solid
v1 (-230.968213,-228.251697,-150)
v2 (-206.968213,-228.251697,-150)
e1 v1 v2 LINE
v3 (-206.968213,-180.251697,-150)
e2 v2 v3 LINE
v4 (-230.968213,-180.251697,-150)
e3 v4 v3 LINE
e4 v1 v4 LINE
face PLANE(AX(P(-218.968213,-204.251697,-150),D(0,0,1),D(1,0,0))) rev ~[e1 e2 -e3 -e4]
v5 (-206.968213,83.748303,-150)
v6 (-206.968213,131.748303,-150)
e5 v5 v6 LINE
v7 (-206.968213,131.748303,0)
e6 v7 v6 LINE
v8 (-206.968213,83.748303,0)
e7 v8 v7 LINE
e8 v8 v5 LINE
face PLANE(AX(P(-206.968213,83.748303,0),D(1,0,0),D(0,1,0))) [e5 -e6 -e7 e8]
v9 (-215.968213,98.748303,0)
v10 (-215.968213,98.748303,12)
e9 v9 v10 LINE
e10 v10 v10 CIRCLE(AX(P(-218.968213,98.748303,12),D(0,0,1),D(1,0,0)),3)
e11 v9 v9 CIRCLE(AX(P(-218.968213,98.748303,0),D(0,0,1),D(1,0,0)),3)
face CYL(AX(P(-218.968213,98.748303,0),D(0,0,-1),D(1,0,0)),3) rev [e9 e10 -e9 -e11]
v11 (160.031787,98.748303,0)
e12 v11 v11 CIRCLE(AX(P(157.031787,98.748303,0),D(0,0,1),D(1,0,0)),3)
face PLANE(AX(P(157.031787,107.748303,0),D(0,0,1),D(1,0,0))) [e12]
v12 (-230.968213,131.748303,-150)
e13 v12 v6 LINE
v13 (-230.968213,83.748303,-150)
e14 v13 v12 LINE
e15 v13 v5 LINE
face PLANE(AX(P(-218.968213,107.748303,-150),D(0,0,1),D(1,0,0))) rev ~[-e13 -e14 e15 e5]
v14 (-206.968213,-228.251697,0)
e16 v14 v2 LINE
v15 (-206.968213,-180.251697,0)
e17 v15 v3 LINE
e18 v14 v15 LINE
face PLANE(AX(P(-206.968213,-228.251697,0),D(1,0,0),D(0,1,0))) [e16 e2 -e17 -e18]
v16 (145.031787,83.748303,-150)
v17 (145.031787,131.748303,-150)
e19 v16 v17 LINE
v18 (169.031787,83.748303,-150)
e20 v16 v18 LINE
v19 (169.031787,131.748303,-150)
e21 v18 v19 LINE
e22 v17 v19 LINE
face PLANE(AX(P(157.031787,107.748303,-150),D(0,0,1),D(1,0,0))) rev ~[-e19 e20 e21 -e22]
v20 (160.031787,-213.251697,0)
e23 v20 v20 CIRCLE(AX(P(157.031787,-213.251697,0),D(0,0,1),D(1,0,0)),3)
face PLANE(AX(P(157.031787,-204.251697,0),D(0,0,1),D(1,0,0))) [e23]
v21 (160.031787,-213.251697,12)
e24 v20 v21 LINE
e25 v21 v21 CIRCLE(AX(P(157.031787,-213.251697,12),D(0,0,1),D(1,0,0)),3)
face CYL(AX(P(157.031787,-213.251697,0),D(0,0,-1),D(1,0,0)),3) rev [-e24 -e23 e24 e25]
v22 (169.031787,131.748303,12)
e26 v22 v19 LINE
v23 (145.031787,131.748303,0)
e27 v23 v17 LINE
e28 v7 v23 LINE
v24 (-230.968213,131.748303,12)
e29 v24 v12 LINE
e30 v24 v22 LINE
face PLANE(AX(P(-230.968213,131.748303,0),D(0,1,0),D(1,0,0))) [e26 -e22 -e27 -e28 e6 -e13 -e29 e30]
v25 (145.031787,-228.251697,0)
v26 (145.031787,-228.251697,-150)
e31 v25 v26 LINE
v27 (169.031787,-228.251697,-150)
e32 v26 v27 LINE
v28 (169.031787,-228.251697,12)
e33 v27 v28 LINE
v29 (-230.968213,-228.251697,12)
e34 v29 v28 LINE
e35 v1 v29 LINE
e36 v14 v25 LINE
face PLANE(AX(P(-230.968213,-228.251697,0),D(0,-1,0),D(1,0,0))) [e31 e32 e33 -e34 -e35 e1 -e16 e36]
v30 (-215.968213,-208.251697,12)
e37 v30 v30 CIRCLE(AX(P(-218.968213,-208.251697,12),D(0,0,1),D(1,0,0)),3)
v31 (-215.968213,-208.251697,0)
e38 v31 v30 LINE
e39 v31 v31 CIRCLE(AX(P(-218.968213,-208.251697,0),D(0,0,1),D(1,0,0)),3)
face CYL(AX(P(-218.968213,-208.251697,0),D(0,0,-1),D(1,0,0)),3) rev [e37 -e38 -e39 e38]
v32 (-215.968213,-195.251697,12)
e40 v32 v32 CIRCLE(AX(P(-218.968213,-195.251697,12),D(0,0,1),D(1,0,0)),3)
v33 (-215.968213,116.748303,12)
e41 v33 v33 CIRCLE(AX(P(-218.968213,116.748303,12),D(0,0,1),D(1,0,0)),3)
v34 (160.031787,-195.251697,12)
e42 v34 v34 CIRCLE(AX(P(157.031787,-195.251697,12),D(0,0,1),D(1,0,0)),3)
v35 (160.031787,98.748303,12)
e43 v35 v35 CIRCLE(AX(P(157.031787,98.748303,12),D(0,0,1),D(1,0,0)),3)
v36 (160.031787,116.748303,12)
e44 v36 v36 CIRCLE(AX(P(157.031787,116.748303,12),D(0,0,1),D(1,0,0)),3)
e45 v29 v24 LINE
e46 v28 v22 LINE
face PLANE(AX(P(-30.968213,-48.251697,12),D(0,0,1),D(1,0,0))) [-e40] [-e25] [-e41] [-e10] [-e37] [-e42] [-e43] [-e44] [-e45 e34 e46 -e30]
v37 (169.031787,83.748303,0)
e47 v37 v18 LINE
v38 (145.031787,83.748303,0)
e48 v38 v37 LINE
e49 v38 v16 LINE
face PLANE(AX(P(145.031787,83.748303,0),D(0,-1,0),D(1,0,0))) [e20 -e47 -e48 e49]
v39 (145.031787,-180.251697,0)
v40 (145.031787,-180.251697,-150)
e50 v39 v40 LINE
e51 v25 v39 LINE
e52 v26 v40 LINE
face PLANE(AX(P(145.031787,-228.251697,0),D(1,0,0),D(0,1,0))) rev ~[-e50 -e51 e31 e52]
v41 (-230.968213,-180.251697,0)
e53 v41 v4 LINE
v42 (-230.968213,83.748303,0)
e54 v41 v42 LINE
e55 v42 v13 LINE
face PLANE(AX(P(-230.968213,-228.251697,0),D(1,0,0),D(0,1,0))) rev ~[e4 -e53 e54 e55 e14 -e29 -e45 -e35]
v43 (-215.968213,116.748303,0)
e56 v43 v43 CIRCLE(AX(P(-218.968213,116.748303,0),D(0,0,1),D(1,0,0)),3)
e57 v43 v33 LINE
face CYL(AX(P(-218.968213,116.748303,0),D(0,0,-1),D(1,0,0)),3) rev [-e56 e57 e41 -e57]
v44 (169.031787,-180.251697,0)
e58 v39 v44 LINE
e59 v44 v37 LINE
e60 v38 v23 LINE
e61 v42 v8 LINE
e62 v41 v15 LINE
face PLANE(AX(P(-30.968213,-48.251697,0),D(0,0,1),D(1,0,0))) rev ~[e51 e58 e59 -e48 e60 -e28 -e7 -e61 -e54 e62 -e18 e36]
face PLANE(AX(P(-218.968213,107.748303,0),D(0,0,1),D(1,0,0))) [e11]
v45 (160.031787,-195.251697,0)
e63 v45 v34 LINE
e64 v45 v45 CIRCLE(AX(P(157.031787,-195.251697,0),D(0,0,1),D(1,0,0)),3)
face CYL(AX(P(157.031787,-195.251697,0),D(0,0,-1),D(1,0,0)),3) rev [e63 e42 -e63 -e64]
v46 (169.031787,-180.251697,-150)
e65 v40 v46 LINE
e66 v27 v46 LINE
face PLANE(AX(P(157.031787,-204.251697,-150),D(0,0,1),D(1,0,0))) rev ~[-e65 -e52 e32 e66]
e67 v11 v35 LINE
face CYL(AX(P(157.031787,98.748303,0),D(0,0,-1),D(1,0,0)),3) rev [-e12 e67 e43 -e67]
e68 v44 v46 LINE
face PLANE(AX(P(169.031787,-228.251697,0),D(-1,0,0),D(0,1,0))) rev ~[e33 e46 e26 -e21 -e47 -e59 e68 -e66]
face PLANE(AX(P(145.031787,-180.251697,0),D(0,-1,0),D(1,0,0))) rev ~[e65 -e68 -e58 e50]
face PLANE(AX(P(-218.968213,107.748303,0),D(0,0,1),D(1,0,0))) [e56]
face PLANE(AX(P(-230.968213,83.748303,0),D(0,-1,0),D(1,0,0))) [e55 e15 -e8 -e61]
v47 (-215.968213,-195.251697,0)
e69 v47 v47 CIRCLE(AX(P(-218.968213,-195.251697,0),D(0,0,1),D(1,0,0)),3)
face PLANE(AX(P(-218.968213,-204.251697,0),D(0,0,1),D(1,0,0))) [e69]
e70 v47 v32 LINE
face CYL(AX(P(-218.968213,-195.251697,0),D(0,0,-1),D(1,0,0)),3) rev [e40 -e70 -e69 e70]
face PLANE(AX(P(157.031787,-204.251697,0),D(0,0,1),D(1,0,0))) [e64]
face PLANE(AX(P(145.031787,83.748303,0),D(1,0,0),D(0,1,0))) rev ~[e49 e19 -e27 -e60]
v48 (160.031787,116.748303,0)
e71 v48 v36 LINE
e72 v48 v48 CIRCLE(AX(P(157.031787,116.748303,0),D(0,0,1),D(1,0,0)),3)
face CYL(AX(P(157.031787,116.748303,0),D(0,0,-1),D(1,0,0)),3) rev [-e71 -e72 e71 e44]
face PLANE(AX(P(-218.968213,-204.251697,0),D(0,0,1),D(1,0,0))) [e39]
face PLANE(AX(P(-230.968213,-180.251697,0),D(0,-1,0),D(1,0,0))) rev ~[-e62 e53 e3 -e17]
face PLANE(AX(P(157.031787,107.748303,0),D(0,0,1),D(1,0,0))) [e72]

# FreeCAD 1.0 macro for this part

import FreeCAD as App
import Part
import Sketcher
from FreeCAD import Vector


def add_polygon(sketch, points):
    """Adds a closed chain of lines whose ends are joined by coincident constraints."""
    first, n = sketch.GeometryCount, len(points)
    for a, b in zip(points, points[1:] + points[:1]):
        sketch.addGeometry(Part.LineSegment(App.Vector(*a, 0), App.Vector(*b, 0)), False)
    for i in range(n):
        sketch.addConstraint(Sketcher.Constraint("Coincident", first + i, 2, first + (i + 1) % n, 1))

doc = App.newDocument("Part")
body = doc.addObject("PartDesign::Body", "Body")

sketch1 = body.newObject("Sketcher::SketchObject", "Sketch")
sketch1.AttachmentSupport = (doc.getObject("XY_Plane"), [""])
sketch1.MapMode = "FlatFace"
add_polygon(sketch1, [(-230.968213, 131.748303), (-230.968213, -228.251697), (169.031787, -228.251697), (169.031787, 131.748303)])
sketch1.addGeometry(Part.Circle(Vector(-218.968213, -208.251697, 0), Vector(0, 0, 1), 3), False)
sketch1.addGeometry(Part.Circle(Vector(-218.968213, -195.251697, 0), Vector(0, 0, 1), 3), False)
sketch1.addGeometry(Part.Circle(Vector(157.031787, -213.251697, 0), Vector(0, 0, 1), 3), False)
sketch1.addGeometry(Part.Circle(Vector(157.031787, -195.251697, 0), Vector(0, 0, 1), 3), False)
sketch1.addGeometry(Part.Circle(Vector(-218.968213, 98.748303, 0), Vector(0, 0, 1), 3), False)
sketch1.addGeometry(Part.Circle(Vector(-218.968213, 116.748303, 0), Vector(0, 0, 1), 3), False)
sketch1.addGeometry(Part.Circle(Vector(157.031787, 98.748303, 0), Vector(0, 0, 1), 3), False)
sketch1.addGeometry(Part.Circle(Vector(157.031787, 116.748303, 0), Vector(0, 0, 1), 3), False)
sketch1.addConstraint([
    Sketcher.Constraint("Vertical", 0),
    Sketcher.Constraint("Horizontal", 1),
    Sketcher.Constraint("Vertical", 2),
    Sketcher.Constraint("Horizontal", 3),
    Sketcher.Constraint("Equal", 4, 5),
    Sketcher.Constraint("Equal", 5, 6),
    Sketcher.Constraint("Equal", 6, 7),
    Sketcher.Constraint("Equal", 7, 8),
    Sketcher.Constraint("Equal", 8, 9),
    Sketcher.Constraint("Equal", 9, 10),
    Sketcher.Constraint("Equal", 10, 11),
    Sketcher.Constraint("Horizontal", 5, 3, 7, 3),
    Sketcher.Constraint("Horizontal", 8, 3, 10, 3),
    Sketcher.Constraint("Horizontal", 9, 3, 11, 3),
    Sketcher.Constraint("Vertical", 4, 3, 5, 3),
    Sketcher.Constraint("Vertical", 6, 3, 7, 3),
    Sketcher.Constraint("Vertical", 5, 3, 8, 3),
    Sketcher.Constraint("Vertical", 8, 3, 9, 3),
    Sketcher.Constraint("Vertical", 7, 3, 10, 3),
    Sketcher.Constraint("Vertical", 10, 3, 11, 3),
    Sketcher.Constraint("Diameter", 4, 6.0),
    Sketcher.Constraint("DistanceX", 1, 1, 1, 2, 400.0),
    Sketcher.Constraint("DistanceY", 0, 2, 0, 1, 360.0),
    Sketcher.Constraint("DistanceY", 4, 3, 5, 3, 13.0),
    Sketcher.Constraint("DistanceX", 4, 3, 6, 3, 376.0),
    Sketcher.Constraint("DistanceY", 6, 3, 4, 3, 5.0),
    Sketcher.Constraint("DistanceY", 5, 3, 8, 3, 294.0),
    Sketcher.Constraint("DistanceY", 8, 3, 9, 3, 18.0),
    Sketcher.Constraint("DistanceX", 0, 2, 4, 3, 12.0),
    Sketcher.Constraint("DistanceY", 0, 2, 4, 3, 20.0),
    Sketcher.Constraint("DistanceX", 4, 3, -1, 1, 218.968213),
    Sketcher.Constraint("DistanceY", 4, 3, -1, 1, 208.251697),
])
pad1 = body.newObject("PartDesign::Pad", "Pad")
pad1.Profile = sketch1
pad1.Length = 12

sketch2 = body.newObject("Sketcher::SketchObject", "Sketch001")
sketch2.AttachmentSupport = (doc.getObject("XY_Plane"), [""])
sketch2.MapMode = "FlatFace"
add_polygon(sketch2, [(-230.968213, -180.251697), (-230.968213, -228.251697), (-206.968213, -228.251697), (-206.968213, -180.251697)])
add_polygon(sketch2, [(-230.968213, 131.748303), (-230.968213, 83.748303), (-206.968213, 83.748303), (-206.968213, 131.748303)])
add_polygon(sketch2, [(145.031787, 131.748303), (145.031787, 83.748303), (169.031787, 83.748303), (169.031787, 131.748303)])
add_polygon(sketch2, [(145.031787, -180.251697), (145.031787, -228.251697), (169.031787, -228.251697), (169.031787, -180.251697)])
sketch2.addConstraint([
    Sketcher.Constraint("Vertical", 0),
    Sketcher.Constraint("Horizontal", 1),
    Sketcher.Constraint("Vertical", 2),
    Sketcher.Constraint("Horizontal", 3),
    Sketcher.Constraint("Vertical", 4),
    Sketcher.Constraint("Horizontal", 5),
    Sketcher.Constraint("Vertical", 6),
    Sketcher.Constraint("Horizontal", 7),
    Sketcher.Constraint("Vertical", 8),
    Sketcher.Constraint("Horizontal", 9),
    Sketcher.Constraint("Vertical", 10),
    Sketcher.Constraint("Horizontal", 11),
    Sketcher.Constraint("Vertical", 12),
    Sketcher.Constraint("Horizontal", 13),
    Sketcher.Constraint("Vertical", 14),
    Sketcher.Constraint("Horizontal", 15),
    Sketcher.Constraint("Horizontal", 5, 2, 8, 2),
    Sketcher.Constraint("Horizontal", 7, 2, 10, 2),
    Sketcher.Constraint("Horizontal", 1, 2, 12, 2),
    Sketcher.Constraint("Horizontal", 3, 2, 14, 2),
    Sketcher.Constraint("Vertical", 3, 2, 4, 2),
    Sketcher.Constraint("Vertical", 2, 2, 5, 2),
    Sketcher.Constraint("Vertical", 11, 2, 12, 2),
    Sketcher.Constraint("Vertical", 10, 2, 13, 2),
    Sketcher.Constraint("Equal", 7, 9),
    Sketcher.Constraint("Equal", 2, 4),
    Sketcher.Constraint("DistanceX", 1, 1, 1, 2, 24.0),
    Sketcher.Constraint("DistanceY", 0, 2, 0, 1, 48.0),
    Sketcher.Constraint("DistanceY", 3, 2, 4, 2, 264.0),
    Sketcher.Constraint("DistanceX", 5, 2, 8, 2, 352.0),
    Sketcher.Constraint("DistanceX", 0, 2, -1, 1, 230.968213),
    Sketcher.Constraint("DistanceY", 0, 2, -1, 1, 228.251697),
])
pad2 = body.newObject("PartDesign::Pad", "Pad001")
pad2.Profile = sketch2
pad2.Length = 150
pad2.Reversed = True

doc.recompute()
